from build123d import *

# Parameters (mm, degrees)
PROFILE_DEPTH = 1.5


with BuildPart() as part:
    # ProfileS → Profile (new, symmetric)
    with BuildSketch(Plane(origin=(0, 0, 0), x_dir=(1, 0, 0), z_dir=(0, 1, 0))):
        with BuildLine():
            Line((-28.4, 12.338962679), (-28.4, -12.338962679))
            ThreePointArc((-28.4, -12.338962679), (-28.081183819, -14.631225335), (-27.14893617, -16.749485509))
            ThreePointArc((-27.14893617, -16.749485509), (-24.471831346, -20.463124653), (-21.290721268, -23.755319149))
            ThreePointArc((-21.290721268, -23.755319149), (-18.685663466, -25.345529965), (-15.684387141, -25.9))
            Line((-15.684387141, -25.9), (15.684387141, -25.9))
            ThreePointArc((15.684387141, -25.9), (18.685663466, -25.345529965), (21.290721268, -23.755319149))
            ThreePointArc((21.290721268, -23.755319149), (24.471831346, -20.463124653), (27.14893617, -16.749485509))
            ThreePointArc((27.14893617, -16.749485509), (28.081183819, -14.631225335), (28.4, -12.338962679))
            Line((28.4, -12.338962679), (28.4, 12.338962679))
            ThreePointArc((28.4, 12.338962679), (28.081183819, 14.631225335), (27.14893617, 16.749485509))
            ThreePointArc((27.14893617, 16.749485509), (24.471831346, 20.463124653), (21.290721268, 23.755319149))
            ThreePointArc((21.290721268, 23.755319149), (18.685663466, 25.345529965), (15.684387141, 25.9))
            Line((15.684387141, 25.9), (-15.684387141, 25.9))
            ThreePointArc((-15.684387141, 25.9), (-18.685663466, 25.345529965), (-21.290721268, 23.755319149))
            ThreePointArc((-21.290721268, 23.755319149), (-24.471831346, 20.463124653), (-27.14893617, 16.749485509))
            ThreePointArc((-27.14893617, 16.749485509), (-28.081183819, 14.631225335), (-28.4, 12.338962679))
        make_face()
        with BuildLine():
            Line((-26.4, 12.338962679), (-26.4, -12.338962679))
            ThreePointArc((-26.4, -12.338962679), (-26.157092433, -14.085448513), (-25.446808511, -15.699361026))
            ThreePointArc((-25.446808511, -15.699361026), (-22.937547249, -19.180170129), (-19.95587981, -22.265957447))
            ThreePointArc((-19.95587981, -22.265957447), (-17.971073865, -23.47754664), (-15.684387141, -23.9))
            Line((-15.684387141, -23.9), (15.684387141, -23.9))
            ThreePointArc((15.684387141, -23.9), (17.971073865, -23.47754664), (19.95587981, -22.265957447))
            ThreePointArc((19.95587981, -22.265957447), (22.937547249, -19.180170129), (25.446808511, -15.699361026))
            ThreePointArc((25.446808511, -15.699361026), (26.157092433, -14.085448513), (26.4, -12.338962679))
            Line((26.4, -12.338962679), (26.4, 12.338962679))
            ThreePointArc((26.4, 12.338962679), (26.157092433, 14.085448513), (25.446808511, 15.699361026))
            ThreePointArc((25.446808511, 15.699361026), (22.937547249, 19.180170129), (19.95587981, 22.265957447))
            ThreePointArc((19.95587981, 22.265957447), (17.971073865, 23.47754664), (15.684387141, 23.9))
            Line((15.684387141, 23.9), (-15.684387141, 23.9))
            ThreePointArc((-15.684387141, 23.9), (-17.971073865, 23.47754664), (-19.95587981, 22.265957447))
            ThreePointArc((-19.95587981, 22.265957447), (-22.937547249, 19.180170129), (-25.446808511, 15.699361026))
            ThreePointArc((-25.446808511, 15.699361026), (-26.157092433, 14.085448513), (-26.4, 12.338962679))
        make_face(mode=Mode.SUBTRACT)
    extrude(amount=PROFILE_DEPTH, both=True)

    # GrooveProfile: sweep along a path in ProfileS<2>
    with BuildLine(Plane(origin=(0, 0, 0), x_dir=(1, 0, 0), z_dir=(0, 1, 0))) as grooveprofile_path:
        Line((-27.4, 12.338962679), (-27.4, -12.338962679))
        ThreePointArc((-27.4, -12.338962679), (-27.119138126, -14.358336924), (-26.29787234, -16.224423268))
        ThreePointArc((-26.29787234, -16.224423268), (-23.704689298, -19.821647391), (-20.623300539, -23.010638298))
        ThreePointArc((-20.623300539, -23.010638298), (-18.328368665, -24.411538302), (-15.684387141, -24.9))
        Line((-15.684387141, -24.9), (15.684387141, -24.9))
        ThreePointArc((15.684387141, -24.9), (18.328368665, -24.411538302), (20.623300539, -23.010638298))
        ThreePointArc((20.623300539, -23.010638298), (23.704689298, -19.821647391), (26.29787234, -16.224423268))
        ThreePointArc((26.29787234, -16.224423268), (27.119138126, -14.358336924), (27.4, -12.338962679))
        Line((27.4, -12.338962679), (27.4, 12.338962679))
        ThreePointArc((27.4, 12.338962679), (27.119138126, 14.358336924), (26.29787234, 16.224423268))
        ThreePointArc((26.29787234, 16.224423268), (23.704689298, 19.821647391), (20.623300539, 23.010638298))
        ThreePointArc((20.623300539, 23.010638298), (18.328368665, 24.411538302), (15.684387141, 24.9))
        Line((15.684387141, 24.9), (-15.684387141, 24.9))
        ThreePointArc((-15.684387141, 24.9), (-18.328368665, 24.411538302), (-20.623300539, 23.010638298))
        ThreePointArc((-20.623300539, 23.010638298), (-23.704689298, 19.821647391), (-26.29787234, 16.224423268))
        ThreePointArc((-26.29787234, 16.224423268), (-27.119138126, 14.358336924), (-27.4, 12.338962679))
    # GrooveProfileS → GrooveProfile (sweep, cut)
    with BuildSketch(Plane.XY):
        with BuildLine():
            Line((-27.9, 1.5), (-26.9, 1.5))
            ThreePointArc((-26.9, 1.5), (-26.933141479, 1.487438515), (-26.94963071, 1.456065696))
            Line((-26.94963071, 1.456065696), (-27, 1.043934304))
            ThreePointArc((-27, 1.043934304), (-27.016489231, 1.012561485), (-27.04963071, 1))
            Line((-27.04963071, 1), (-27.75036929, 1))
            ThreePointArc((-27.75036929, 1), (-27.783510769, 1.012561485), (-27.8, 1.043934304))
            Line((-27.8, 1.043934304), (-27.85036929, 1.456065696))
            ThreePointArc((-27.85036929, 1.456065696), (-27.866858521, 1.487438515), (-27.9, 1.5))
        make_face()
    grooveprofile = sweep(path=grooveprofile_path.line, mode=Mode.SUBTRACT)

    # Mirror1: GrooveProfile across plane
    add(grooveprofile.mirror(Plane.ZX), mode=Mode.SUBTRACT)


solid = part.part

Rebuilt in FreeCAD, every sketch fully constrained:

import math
import FreeCAD as App
import Part
import Sketcher

V = App.Vector

doc = App.newDocument("Part")
body = doc.addObject("PartDesign::Body", "Body")

sketch1 = doc.addObject("Sketcher::SketchObject", "Sketch")
body.addObject(sketch1)
sketch1.AttachmentSupport = (doc.XZ_Plane, [""])
sketch1.MapMode = "FlatFace"
sketch1.addGeometry(Part.LineSegment(V(-28.4, -12.3, 0), V(-28.4, 12.3, 0)), False)
sketch1.addGeometry(Part.ArcOfCircle(Part.Circle(V(-20, 12.3, 0), V(0, 0, 1), 8.4), math.radians(148), math.radians(180)), False)
sketch1.addGeometry(Part.ArcOfCircle(Part.Circle(V(0, 0, 0), V(0, 0, 1), 31.9), math.radians(131.87), math.radians(148.33)), False)
sketch1.addGeometry(Part.ArcOfCircle(Part.Circle(V(-15.7, 17.5, 0), V(0, 0, 1), 8.4), math.radians(90), math.radians(132)), False)
sketch1.addGeometry(Part.LineSegment(V(-15.7, 25.9, 0), V(15.7, 25.9, 0)), False)
sketch1.addGeometry(Part.ArcOfCircle(Part.Circle(V(15.7, 17.5, 0), V(0, 0, 1), 8.4), math.radians(48), math.radians(90)), False)
sketch1.addGeometry(Part.ArcOfCircle(Part.Circle(V(0, 0, 0), V(0, 0, 1), 31.9), math.radians(31.67), math.radians(48.13)), False)
sketch1.addGeometry(Part.ArcOfCircle(Part.Circle(V(20, 12.3, 0), V(0, 0, 1), 8.4), math.radians(0), math.radians(32)), False)
sketch1.addGeometry(Part.LineSegment(V(28.4, 12.3, 0), V(28.4, -12.3, 0)), False)
sketch1.addGeometry(Part.ArcOfCircle(Part.Circle(V(20, -12.3, 0), V(0, 0, 1), 8.4), math.radians(-32), math.radians(0)), False)
sketch1.addGeometry(Part.ArcOfCircle(Part.Circle(V(0, 0, 0), V(0, 0, 1), 31.9), math.radians(-48.13), math.radians(-31.67)), False)
sketch1.addGeometry(Part.ArcOfCircle(Part.Circle(V(15.7, -17.5, 0), V(0, 0, 1), 8.4), math.radians(-90), math.radians(-48)), False)
sketch1.addGeometry(Part.LineSegment(V(15.7, -25.9, 0), V(-15.7, -25.9, 0)), False)
sketch1.addGeometry(Part.ArcOfCircle(Part.Circle(V(-15.7, -17.5, 0), V(0, 0, 1), 8.4), math.radians(-132), math.radians(-90)), False)
sketch1.addGeometry(Part.ArcOfCircle(Part.Circle(V(0, 0, 0), V(0, 0, 1), 31.9), math.radians(-148.33), math.radians(-131.87)), False)
sketch1.addGeometry(Part.ArcOfCircle(Part.Circle(V(-20, -12.3, 0), V(0, 0, 1), 8.4), math.radians(180), math.radians(212)), False)
sketch1.addGeometry(Part.LineSegment(V(-26.4, 12.3, 0), V(-26.4, -12.3, 0)), False)
sketch1.addGeometry(Part.ArcOfCircle(Part.Circle(V(-20, -12.3, 0), V(0, 0, 1), 6.4), math.radians(-180), math.radians(-148)), False)
sketch1.addGeometry(Part.ArcOfCircle(Part.Circle(V(0, 0, 0), V(0, 0, 1), 29.9), math.radians(-148.33), math.radians(-131.87)), False)
sketch1.addGeometry(Part.ArcOfCircle(Part.Circle(V(-15.7, -17.5, 0), V(0, 0, 1), 6.4), math.radians(-132), math.radians(-90)), False)
sketch1.addGeometry(Part.LineSegment(V(-15.7, -23.9, 0), V(15.7, -23.9, 0)), False)
sketch1.addGeometry(Part.ArcOfCircle(Part.Circle(V(15.7, -17.5, 0), V(0, 0, 1), 6.4), math.radians(-90), math.radians(-48)), False)
sketch1.addGeometry(Part.ArcOfCircle(Part.Circle(V(0, 0, 0), V(0, 0, 1), 29.9), math.radians(-48.13), math.radians(-31.67)), False)
sketch1.addGeometry(Part.ArcOfCircle(Part.Circle(V(20, -12.3, 0), V(0, 0, 1), 6.4), math.radians(-32), math.radians(0)), False)
sketch1.addGeometry(Part.LineSegment(V(26.4, -12.3, 0), V(26.4, 12.3, 0)), False)
sketch1.addGeometry(Part.ArcOfCircle(Part.Circle(V(20, 12.3, 0), V(0, 0, 1), 6.4), math.radians(0), math.radians(32)), False)
sketch1.addGeometry(Part.ArcOfCircle(Part.Circle(V(0, 0, 0), V(0, 0, 1), 29.9), math.radians(31.67), math.radians(48.13)), False)
sketch1.addGeometry(Part.ArcOfCircle(Part.Circle(V(15.7, 17.5, 0), V(0, 0, 1), 6.4), math.radians(48), math.radians(90)), False)
sketch1.addGeometry(Part.LineSegment(V(15.7, 23.9, 0), V(-15.7, 23.9, 0)), False)
sketch1.addGeometry(Part.ArcOfCircle(Part.Circle(V(-15.7, 17.5, 0), V(0, 0, 1), 6.4), math.radians(90), math.radians(132)), False)
sketch1.addGeometry(Part.ArcOfCircle(Part.Circle(V(0, 0, 0), V(0, 0, 1), 29.9), math.radians(131.87), math.radians(148.33)), False)
sketch1.addGeometry(Part.ArcOfCircle(Part.Circle(V(-20, 12.3, 0), V(0, 0, 1), 6.4), math.radians(148), math.radians(180)), False)
sketch1.addConstraint(Sketcher.Constraint("Tangent", 0, 2, 1, 2))
sketch1.addConstraint(Sketcher.Constraint("Tangent", 1, 1, 2, 2))
sketch1.addConstraint(Sketcher.Constraint("Tangent", 2, 1, 3, 2))
sketch1.addConstraint(Sketcher.Constraint("Tangent", 3, 1, 4, 1))
sketch1.addConstraint(Sketcher.Constraint("Tangent", 4, 2, 5, 2))
sketch1.addConstraint(Sketcher.Constraint("Tangent", 5, 1, 6, 2))
sketch1.addConstraint(Sketcher.Constraint("Tangent", 6, 1, 7, 2))
sketch1.addConstraint(Sketcher.Constraint("Tangent", 7, 1, 8, 1))
sketch1.addConstraint(Sketcher.Constraint("Tangent", 8, 2, 9, 2))
sketch1.addConstraint(Sketcher.Constraint("Tangent", 9, 1, 10, 2))
sketch1.addConstraint(Sketcher.Constraint("Tangent", 10, 1, 11, 2))
sketch1.addConstraint(Sketcher.Constraint("Tangent", 11, 1, 12, 1))
sketch1.addConstraint(Sketcher.Constraint("Tangent", 12, 2, 13, 2))
sketch1.addConstraint(Sketcher.Constraint("Tangent", 13, 1, 14, 2))
sketch1.addConstraint(Sketcher.Constraint("Tangent", 14, 1, 15, 2))
sketch1.addConstraint(Sketcher.Constraint("Tangent", 15, 1, 0, 1))
sketch1.addConstraint(Sketcher.Constraint("Tangent", 16, 2, 17, 1))
sketch1.addConstraint(Sketcher.Constraint("Tangent", 17, 2, 18, 1))
sketch1.addConstraint(Sketcher.Constraint("Tangent", 18, 2, 19, 1))
sketch1.addConstraint(Sketcher.Constraint("Tangent", 19, 2, 20, 1))
sketch1.addConstraint(Sketcher.Constraint("Tangent", 20, 2, 21, 1))
sketch1.addConstraint(Sketcher.Constraint("Tangent", 21, 2, 22, 1))
sketch1.addConstraint(Sketcher.Constraint("Tangent", 22, 2, 23, 1))
sketch1.addConstraint(Sketcher.Constraint("Tangent", 23, 2, 24, 1))
sketch1.addConstraint(Sketcher.Constraint("Tangent", 24, 2, 25, 1))
sketch1.addConstraint(Sketcher.Constraint("Tangent", 25, 2, 26, 1))
sketch1.addConstraint(Sketcher.Constraint("Tangent", 26, 2, 27, 1))
sketch1.addConstraint(Sketcher.Constraint("Tangent", 27, 2, 28, 1))
sketch1.addConstraint(Sketcher.Constraint("Tangent", 28, 2, 29, 1))
sketch1.addConstraint(Sketcher.Constraint("Tangent", 29, 2, 30, 1))
sketch1.addConstraint(Sketcher.Constraint("Tangent", 30, 2, 31, 1))
sketch1.addConstraint(Sketcher.Constraint("Tangent", 31, 2, 16, 1))
sketch1.addConstraint(Sketcher.Constraint("Vertical", 0))
sketch1.addConstraint(Sketcher.Constraint("Horizontal", 4))
sketch1.addConstraint(Sketcher.Constraint("Vertical", 8))
sketch1.addConstraint(Sketcher.Constraint("Horizontal", 12))
sketch1.addConstraint(Sketcher.Constraint("Vertical", 16))
sketch1.addConstraint(Sketcher.Constraint("Horizontal", 20))
sketch1.addConstraint(Sketcher.Constraint("Vertical", 24))
sketch1.addConstraint(Sketcher.Constraint("Horizontal", 28))
sketch1.addConstraint(Sketcher.Constraint("Coincident", 2, 3, -1, 1))
sketch1.addConstraint(Sketcher.Constraint("Coincident", 6, 3, -1, 1))
sketch1.addConstraint(Sketcher.Constraint("Coincident", 10, 3, -1, 1))
sketch1.addConstraint(Sketcher.Constraint("Coincident", 14, 3, -1, 1))
sketch1.addConstraint(Sketcher.Constraint("Coincident", 18, 3, -1, 1))
sketch1.addConstraint(Sketcher.Constraint("Coincident", 22, 3, -1, 1))
sketch1.addConstraint(Sketcher.Constraint("Coincident", 26, 3, -1, 1))
sketch1.addConstraint(Sketcher.Constraint("Coincident", 30, 3, -1, 1))
sketch1.addConstraint(Sketcher.Constraint("Coincident", 17, 3, 15, 3))
sketch1.addConstraint(Sketcher.Constraint("Coincident", 19, 3, 13, 3))
sketch1.addConstraint(Sketcher.Constraint("Coincident", 21, 3, 11, 3))
sketch1.addConstraint(Sketcher.Constraint("Coincident", 23, 3, 9, 3))
sketch1.addConstraint(Sketcher.Constraint("Coincident", 25, 3, 7, 3))
sketch1.addConstraint(Sketcher.Constraint("Coincident", 27, 3, 5, 3))
sketch1.addConstraint(Sketcher.Constraint("Coincident", 29, 3, 3, 3))
sketch1.addConstraint(Sketcher.Constraint("Equal", 1, 3))
sketch1.addConstraint(Sketcher.Constraint("Equal", 3, 5))
sketch1.addConstraint(Sketcher.Constraint("Equal", 2, 6))
sketch1.addConstraint(Sketcher.Constraint("Equal", 5, 7))
sketch1.addConstraint(Sketcher.Constraint("Equal", 7, 9))
sketch1.addConstraint(Sketcher.Constraint("Equal", 6, 10))
sketch1.addConstraint(Sketcher.Constraint("Equal", 9, 11))
sketch1.addConstraint(Sketcher.Constraint("Equal", 11, 13))
sketch1.addConstraint(Sketcher.Constraint("Equal", 10, 14))
sketch1.addConstraint(Sketcher.Constraint("Equal", 13, 15))
sketch1.addConstraint(Sketcher.Constraint("Equal", 29, 31))
sketch1.addConstraint(Sketcher.Constraint("Horizontal", 1, 3, 7, 3))
sketch1.addConstraint(Sketcher.Constraint("Vertical", 5, 3, 11, 3))
sketch1.addConstraint(Sketcher.Constraint("Radius", 1, 8.4))
sketch1.addConstraint(Sketcher.Constraint("Radius", 2, 31.9))
sketch1.addConstraint(Sketcher.Constraint("Radius", 17, 6.4))
sketch1.addConstraint(Sketcher.Constraint("DistanceX", 1, 3, -1, 1, 20.0))
sketch1.addConstraint(Sketcher.Constraint("DistanceY", -1, 1, 3, 3, 17.5))
pad1 = doc.addObject("PartDesign::Pad", "Pad")
body.addObject(pad1)
pad1.Profile = sketch1
pad1.Length = 3
pad1.Midplane = True

sketch2 = doc.addObject("Sketcher::SketchObject", "Sketch001")
body.addObject(sketch2)
sketch2.AttachmentSupport = (doc.XY_Plane, [""])
sketch2.MapMode = "FlatFace"
sketch2.addGeometry(Part.LineSegment(V(-26.9, 1.5, 0), V(-27.9, 1.5, 0)), False)
sketch2.addGeometry(Part.ArcOfCircle(Part.Circle(V(-27.9, 1.45, 0), V(0, 0, 1), 0.05), math.radians(7), math.radians(90)), False)
sketch2.addGeometry(Part.LineSegment(V(-27.85, 1.46, 0), V(-27.8, 1.04, 0)), False)
sketch2.addGeometry(Part.ArcOfCircle(Part.Circle(V(-27.75, 1.05, 0), V(0, 0, 1), 0.05), math.radians(-173), math.radians(-90)), False)
sketch2.addGeometry(Part.LineSegment(V(-27.75, 1, 0), V(-27.05, 1, 0)), False)
sketch2.addGeometry(Part.ArcOfCircle(Part.Circle(V(-27.05, 1.05, 0), V(0, 0, 1), 0.05), math.radians(-90), math.radians(-7)), False)
sketch2.addGeometry(Part.LineSegment(V(-27, 1.04, 0), V(-26.95, 1.46, 0)), False)
sketch2.addGeometry(Part.ArcOfCircle(Part.Circle(V(-26.9, 1.45, 0), V(0, 0, 1), 0.05), math.radians(90), math.radians(173)), False)
sketch2.addConstraint(Sketcher.Constraint("Tangent", 0, 2, 1, 2))
sketch2.addConstraint(Sketcher.Constraint("Tangent", 1, 1, 2, 1))
sketch2.addConstraint(Sketcher.Constraint("Tangent", 2, 2, 3, 1))
sketch2.addConstraint(Sketcher.Constraint("Tangent", 3, 2, 4, 1))
sketch2.addConstraint(Sketcher.Constraint("Tangent", 4, 2, 5, 1))
sketch2.addConstraint(Sketcher.Constraint("Tangent", 5, 2, 6, 1))
sketch2.addConstraint(Sketcher.Constraint("Tangent", 6, 2, 7, 2))
sketch2.addConstraint(Sketcher.Constraint("Tangent", 7, 1, 0, 1))
sketch2.addConstraint(Sketcher.Constraint("Horizontal", 0))
sketch2.addConstraint(Sketcher.Constraint("Horizontal", 4))
sketch2.addConstraint(Sketcher.Constraint("Equal", 1, 3))
sketch2.addConstraint(Sketcher.Constraint("Equal", 3, 5))
sketch2.addConstraint(Sketcher.Constraint("Equal", 5, 7))
sketch2.addConstraint(Sketcher.Constraint("Horizontal", 2, 2, 5, 2))
sketch2.addConstraint(Sketcher.Constraint("DistanceX", 0, 2, 0, 1, 1.0))
sketch2.addConstraint(Sketcher.Constraint("Radius", 1, 0.05))
sketch2.addConstraint(Sketcher.Constraint("DistanceY", -1, 1, 3, 2, 1.0))
sketch2.addConstraint(Sketcher.Constraint("DistanceX", 5, 2, -1, 1, 27.0))
sketch2.addConstraint(Sketcher.Constraint("DistanceX", 1, 3, -1, 1, 27.9))
sketch2.addConstraint(Sketcher.Constraint("DistanceY", -1, 1, 0, 2, 1.5))

sketch3 = doc.addObject("Sketcher::SketchObject", "Sketch002")
body.addObject(sketch3)
sketch3.AttachmentSupport = (doc.XZ_Plane, [""])
sketch3.MapMode = "FlatFace"
sketch3.addGeometry(Part.LineSegment(V(-27.4, -12.3, 0), V(-27.4, 12.3, 0)), False)
sketch3.addGeometry(Part.ArcOfCircle(Part.Circle(V(-20, 12.3, 0), V(0, 0, 1), 7.4), math.radians(148), math.radians(180)), False)
sketch3.addGeometry(Part.ArcOfCircle(Part.Circle(V(0, 0, 0), V(0, 0, 1), 30.9), math.radians(131.87), math.radians(148.33)), False)
sketch3.addGeometry(Part.ArcOfCircle(Part.Circle(V(-15.7, 17.5, 0), V(0, 0, 1), 7.4), math.radians(90), math.radians(132)), False)
sketch3.addGeometry(Part.LineSegment(V(-15.7, 24.9, 0), V(15.7, 24.9, 0)), False)
sketch3.addGeometry(Part.ArcOfCircle(Part.Circle(V(15.7, 17.5, 0), V(0, 0, 1), 7.4), math.radians(48), math.radians(90)), False)
sketch3.addGeometry(Part.ArcOfCircle(Part.Circle(V(0, 0, 0), V(0, 0, 1), 30.9), math.radians(31.67), math.radians(48.13)), False)
sketch3.addGeometry(Part.ArcOfCircle(Part.Circle(V(20, 12.3, 0), V(0, 0, 1), 7.4), math.radians(0), math.radians(32)), False)
sketch3.addGeometry(Part.LineSegment(V(27.4, 12.3, 0), V(27.4, -12.3, 0)), False)
sketch3.addGeometry(Part.ArcOfCircle(Part.Circle(V(20, -12.3, 0), V(0, 0, 1), 7.4), math.radians(-32), math.radians(0)), False)
sketch3.addGeometry(Part.ArcOfCircle(Part.Circle(V(0, 0, 0), V(0, 0, 1), 30.9), math.radians(-48.13), math.radians(-31.67)), False)
sketch3.addGeometry(Part.ArcOfCircle(Part.Circle(V(15.7, -17.5, 0), V(0, 0, 1), 7.4), math.radians(-90), math.radians(-48)), False)
sketch3.addGeometry(Part.LineSegment(V(15.7, -24.9, 0), V(-15.7, -24.9, 0)), False)
sketch3.addGeometry(Part.ArcOfCircle(Part.Circle(V(-15.7, -17.5, 0), V(0, 0, 1), 7.4), math.radians(-132), math.radians(-90)), False)
sketch3.addGeometry(Part.ArcOfCircle(Part.Circle(V(0, 0, 0), V(0, 0, 1), 30.9), math.radians(-148.33), math.radians(-131.87)), False)
sketch3.addGeometry(Part.ArcOfCircle(Part.Circle(V(-20, -12.3, 0), V(0, 0, 1), 7.4), math.radians(-180), math.radians(-148)), False)
sketch3.addConstraint(Sketcher.Constraint("Tangent", 0, 2, 1, 2))
sketch3.addConstraint(Sketcher.Constraint("Tangent", 1, 1, 2, 2))
sketch3.addConstraint(Sketcher.Constraint("Tangent", 2, 1, 3, 2))
sketch3.addConstraint(Sketcher.Constraint("Tangent", 3, 1, 4, 1))
sketch3.addConstraint(Sketcher.Constraint("Tangent", 4, 2, 5, 2))
sketch3.addConstraint(Sketcher.Constraint("Tangent", 5, 1, 6, 2))
sketch3.addConstraint(Sketcher.Constraint("Tangent", 6, 1, 7, 2))
sketch3.addConstraint(Sketcher.Constraint("Tangent", 7, 1, 8, 1))
sketch3.addConstraint(Sketcher.Constraint("Tangent", 8, 2, 9, 2))
sketch3.addConstraint(Sketcher.Constraint("Tangent", 9, 1, 10, 2))
sketch3.addConstraint(Sketcher.Constraint("Tangent", 10, 1, 11, 2))
sketch3.addConstraint(Sketcher.Constraint("Tangent", 11, 1, 12, 1))
sketch3.addConstraint(Sketcher.Constraint("Tangent", 12, 2, 13, 2))
sketch3.addConstraint(Sketcher.Constraint("Tangent", 13, 1, 14, 2))
sketch3.addConstraint(Sketcher.Constraint("Tangent", 14, 1, 15, 2))
sketch3.addConstraint(Sketcher.Constraint("Tangent", 15, 1, 0, 1))
sketch3.addConstraint(Sketcher.Constraint("Vertical", 0))
sketch3.addConstraint(Sketcher.Constraint("Horizontal", 4))
sketch3.addConstraint(Sketcher.Constraint("Vertical", 8))
sketch3.addConstraint(Sketcher.Constraint("Horizontal", 12))
sketch3.addConstraint(Sketcher.Constraint("Coincident", 2, 3, -1, 1))
sketch3.addConstraint(Sketcher.Constraint("Coincident", 6, 3, -1, 1))
sketch3.addConstraint(Sketcher.Constraint("Coincident", 10, 3, -1, 1))
sketch3.addConstraint(Sketcher.Constraint("Coincident", 14, 3, -1, 1))
sketch3.addConstraint(Sketcher.Constraint("Equal", 1, 3))
sketch3.addConstraint(Sketcher.Constraint("Equal", 3, 5))
sketch3.addConstraint(Sketcher.Constraint("Equal", 2, 6))
sketch3.addConstraint(Sketcher.Constraint("Equal", 5, 7))
sketch3.addConstraint(Sketcher.Constraint("Equal", 7, 9))
sketch3.addConstraint(Sketcher.Constraint("Equal", 6, 10))
sketch3.addConstraint(Sketcher.Constraint("Equal", 9, 11))
sketch3.addConstraint(Sketcher.Constraint("Equal", 11, 13))
sketch3.addConstraint(Sketcher.Constraint("Equal", 10, 14))
sketch3.addConstraint(Sketcher.Constraint("Equal", 13, 15))
sketch3.addConstraint(Sketcher.Constraint("Horizontal", 1, 3, 7, 3))
sketch3.addConstraint(Sketcher.Constraint("Vertical", 5, 3, 11, 3))
sketch3.addConstraint(Sketcher.Constraint("Radius", 1, 7.4))
sketch3.addConstraint(Sketcher.Constraint("Radius", 2, 30.9))
sketch3.addConstraint(Sketcher.Constraint("DistanceX", 1, 3, -1, 1, 20.0))
sketch3.addConstraint(Sketcher.Constraint("DistanceY", -1, 1, 3, 3, 17.5))
doc.recompute()

subtractivepipe = doc.addObject("PartDesign::SubtractivePipe", "SubtractivePipe")
body.addObject(subtractivepipe)
subtractivepipe.Profile = sketch2
subtractivepipe.Spine = (sketch3, ["Edge1", "Edge2", "Edge3", "Edge4", "Edge5", "Edge6", "Edge7", "Edge8", "Edge9", "Edge10", "Edge11", "Edge12", "Edge13", "Edge14", "Edge15", "Edge16"])
doc.recompute()

mirrored = doc.addObject("PartDesign::Mirrored", "Mirrored")
body.addObject(mirrored)
mirrored.Originals = [subtractivepipe]
mirrored.MirrorPlane = (doc.XZ_Plane, [""])
body.Tip = mirrored

doc.recompute()
